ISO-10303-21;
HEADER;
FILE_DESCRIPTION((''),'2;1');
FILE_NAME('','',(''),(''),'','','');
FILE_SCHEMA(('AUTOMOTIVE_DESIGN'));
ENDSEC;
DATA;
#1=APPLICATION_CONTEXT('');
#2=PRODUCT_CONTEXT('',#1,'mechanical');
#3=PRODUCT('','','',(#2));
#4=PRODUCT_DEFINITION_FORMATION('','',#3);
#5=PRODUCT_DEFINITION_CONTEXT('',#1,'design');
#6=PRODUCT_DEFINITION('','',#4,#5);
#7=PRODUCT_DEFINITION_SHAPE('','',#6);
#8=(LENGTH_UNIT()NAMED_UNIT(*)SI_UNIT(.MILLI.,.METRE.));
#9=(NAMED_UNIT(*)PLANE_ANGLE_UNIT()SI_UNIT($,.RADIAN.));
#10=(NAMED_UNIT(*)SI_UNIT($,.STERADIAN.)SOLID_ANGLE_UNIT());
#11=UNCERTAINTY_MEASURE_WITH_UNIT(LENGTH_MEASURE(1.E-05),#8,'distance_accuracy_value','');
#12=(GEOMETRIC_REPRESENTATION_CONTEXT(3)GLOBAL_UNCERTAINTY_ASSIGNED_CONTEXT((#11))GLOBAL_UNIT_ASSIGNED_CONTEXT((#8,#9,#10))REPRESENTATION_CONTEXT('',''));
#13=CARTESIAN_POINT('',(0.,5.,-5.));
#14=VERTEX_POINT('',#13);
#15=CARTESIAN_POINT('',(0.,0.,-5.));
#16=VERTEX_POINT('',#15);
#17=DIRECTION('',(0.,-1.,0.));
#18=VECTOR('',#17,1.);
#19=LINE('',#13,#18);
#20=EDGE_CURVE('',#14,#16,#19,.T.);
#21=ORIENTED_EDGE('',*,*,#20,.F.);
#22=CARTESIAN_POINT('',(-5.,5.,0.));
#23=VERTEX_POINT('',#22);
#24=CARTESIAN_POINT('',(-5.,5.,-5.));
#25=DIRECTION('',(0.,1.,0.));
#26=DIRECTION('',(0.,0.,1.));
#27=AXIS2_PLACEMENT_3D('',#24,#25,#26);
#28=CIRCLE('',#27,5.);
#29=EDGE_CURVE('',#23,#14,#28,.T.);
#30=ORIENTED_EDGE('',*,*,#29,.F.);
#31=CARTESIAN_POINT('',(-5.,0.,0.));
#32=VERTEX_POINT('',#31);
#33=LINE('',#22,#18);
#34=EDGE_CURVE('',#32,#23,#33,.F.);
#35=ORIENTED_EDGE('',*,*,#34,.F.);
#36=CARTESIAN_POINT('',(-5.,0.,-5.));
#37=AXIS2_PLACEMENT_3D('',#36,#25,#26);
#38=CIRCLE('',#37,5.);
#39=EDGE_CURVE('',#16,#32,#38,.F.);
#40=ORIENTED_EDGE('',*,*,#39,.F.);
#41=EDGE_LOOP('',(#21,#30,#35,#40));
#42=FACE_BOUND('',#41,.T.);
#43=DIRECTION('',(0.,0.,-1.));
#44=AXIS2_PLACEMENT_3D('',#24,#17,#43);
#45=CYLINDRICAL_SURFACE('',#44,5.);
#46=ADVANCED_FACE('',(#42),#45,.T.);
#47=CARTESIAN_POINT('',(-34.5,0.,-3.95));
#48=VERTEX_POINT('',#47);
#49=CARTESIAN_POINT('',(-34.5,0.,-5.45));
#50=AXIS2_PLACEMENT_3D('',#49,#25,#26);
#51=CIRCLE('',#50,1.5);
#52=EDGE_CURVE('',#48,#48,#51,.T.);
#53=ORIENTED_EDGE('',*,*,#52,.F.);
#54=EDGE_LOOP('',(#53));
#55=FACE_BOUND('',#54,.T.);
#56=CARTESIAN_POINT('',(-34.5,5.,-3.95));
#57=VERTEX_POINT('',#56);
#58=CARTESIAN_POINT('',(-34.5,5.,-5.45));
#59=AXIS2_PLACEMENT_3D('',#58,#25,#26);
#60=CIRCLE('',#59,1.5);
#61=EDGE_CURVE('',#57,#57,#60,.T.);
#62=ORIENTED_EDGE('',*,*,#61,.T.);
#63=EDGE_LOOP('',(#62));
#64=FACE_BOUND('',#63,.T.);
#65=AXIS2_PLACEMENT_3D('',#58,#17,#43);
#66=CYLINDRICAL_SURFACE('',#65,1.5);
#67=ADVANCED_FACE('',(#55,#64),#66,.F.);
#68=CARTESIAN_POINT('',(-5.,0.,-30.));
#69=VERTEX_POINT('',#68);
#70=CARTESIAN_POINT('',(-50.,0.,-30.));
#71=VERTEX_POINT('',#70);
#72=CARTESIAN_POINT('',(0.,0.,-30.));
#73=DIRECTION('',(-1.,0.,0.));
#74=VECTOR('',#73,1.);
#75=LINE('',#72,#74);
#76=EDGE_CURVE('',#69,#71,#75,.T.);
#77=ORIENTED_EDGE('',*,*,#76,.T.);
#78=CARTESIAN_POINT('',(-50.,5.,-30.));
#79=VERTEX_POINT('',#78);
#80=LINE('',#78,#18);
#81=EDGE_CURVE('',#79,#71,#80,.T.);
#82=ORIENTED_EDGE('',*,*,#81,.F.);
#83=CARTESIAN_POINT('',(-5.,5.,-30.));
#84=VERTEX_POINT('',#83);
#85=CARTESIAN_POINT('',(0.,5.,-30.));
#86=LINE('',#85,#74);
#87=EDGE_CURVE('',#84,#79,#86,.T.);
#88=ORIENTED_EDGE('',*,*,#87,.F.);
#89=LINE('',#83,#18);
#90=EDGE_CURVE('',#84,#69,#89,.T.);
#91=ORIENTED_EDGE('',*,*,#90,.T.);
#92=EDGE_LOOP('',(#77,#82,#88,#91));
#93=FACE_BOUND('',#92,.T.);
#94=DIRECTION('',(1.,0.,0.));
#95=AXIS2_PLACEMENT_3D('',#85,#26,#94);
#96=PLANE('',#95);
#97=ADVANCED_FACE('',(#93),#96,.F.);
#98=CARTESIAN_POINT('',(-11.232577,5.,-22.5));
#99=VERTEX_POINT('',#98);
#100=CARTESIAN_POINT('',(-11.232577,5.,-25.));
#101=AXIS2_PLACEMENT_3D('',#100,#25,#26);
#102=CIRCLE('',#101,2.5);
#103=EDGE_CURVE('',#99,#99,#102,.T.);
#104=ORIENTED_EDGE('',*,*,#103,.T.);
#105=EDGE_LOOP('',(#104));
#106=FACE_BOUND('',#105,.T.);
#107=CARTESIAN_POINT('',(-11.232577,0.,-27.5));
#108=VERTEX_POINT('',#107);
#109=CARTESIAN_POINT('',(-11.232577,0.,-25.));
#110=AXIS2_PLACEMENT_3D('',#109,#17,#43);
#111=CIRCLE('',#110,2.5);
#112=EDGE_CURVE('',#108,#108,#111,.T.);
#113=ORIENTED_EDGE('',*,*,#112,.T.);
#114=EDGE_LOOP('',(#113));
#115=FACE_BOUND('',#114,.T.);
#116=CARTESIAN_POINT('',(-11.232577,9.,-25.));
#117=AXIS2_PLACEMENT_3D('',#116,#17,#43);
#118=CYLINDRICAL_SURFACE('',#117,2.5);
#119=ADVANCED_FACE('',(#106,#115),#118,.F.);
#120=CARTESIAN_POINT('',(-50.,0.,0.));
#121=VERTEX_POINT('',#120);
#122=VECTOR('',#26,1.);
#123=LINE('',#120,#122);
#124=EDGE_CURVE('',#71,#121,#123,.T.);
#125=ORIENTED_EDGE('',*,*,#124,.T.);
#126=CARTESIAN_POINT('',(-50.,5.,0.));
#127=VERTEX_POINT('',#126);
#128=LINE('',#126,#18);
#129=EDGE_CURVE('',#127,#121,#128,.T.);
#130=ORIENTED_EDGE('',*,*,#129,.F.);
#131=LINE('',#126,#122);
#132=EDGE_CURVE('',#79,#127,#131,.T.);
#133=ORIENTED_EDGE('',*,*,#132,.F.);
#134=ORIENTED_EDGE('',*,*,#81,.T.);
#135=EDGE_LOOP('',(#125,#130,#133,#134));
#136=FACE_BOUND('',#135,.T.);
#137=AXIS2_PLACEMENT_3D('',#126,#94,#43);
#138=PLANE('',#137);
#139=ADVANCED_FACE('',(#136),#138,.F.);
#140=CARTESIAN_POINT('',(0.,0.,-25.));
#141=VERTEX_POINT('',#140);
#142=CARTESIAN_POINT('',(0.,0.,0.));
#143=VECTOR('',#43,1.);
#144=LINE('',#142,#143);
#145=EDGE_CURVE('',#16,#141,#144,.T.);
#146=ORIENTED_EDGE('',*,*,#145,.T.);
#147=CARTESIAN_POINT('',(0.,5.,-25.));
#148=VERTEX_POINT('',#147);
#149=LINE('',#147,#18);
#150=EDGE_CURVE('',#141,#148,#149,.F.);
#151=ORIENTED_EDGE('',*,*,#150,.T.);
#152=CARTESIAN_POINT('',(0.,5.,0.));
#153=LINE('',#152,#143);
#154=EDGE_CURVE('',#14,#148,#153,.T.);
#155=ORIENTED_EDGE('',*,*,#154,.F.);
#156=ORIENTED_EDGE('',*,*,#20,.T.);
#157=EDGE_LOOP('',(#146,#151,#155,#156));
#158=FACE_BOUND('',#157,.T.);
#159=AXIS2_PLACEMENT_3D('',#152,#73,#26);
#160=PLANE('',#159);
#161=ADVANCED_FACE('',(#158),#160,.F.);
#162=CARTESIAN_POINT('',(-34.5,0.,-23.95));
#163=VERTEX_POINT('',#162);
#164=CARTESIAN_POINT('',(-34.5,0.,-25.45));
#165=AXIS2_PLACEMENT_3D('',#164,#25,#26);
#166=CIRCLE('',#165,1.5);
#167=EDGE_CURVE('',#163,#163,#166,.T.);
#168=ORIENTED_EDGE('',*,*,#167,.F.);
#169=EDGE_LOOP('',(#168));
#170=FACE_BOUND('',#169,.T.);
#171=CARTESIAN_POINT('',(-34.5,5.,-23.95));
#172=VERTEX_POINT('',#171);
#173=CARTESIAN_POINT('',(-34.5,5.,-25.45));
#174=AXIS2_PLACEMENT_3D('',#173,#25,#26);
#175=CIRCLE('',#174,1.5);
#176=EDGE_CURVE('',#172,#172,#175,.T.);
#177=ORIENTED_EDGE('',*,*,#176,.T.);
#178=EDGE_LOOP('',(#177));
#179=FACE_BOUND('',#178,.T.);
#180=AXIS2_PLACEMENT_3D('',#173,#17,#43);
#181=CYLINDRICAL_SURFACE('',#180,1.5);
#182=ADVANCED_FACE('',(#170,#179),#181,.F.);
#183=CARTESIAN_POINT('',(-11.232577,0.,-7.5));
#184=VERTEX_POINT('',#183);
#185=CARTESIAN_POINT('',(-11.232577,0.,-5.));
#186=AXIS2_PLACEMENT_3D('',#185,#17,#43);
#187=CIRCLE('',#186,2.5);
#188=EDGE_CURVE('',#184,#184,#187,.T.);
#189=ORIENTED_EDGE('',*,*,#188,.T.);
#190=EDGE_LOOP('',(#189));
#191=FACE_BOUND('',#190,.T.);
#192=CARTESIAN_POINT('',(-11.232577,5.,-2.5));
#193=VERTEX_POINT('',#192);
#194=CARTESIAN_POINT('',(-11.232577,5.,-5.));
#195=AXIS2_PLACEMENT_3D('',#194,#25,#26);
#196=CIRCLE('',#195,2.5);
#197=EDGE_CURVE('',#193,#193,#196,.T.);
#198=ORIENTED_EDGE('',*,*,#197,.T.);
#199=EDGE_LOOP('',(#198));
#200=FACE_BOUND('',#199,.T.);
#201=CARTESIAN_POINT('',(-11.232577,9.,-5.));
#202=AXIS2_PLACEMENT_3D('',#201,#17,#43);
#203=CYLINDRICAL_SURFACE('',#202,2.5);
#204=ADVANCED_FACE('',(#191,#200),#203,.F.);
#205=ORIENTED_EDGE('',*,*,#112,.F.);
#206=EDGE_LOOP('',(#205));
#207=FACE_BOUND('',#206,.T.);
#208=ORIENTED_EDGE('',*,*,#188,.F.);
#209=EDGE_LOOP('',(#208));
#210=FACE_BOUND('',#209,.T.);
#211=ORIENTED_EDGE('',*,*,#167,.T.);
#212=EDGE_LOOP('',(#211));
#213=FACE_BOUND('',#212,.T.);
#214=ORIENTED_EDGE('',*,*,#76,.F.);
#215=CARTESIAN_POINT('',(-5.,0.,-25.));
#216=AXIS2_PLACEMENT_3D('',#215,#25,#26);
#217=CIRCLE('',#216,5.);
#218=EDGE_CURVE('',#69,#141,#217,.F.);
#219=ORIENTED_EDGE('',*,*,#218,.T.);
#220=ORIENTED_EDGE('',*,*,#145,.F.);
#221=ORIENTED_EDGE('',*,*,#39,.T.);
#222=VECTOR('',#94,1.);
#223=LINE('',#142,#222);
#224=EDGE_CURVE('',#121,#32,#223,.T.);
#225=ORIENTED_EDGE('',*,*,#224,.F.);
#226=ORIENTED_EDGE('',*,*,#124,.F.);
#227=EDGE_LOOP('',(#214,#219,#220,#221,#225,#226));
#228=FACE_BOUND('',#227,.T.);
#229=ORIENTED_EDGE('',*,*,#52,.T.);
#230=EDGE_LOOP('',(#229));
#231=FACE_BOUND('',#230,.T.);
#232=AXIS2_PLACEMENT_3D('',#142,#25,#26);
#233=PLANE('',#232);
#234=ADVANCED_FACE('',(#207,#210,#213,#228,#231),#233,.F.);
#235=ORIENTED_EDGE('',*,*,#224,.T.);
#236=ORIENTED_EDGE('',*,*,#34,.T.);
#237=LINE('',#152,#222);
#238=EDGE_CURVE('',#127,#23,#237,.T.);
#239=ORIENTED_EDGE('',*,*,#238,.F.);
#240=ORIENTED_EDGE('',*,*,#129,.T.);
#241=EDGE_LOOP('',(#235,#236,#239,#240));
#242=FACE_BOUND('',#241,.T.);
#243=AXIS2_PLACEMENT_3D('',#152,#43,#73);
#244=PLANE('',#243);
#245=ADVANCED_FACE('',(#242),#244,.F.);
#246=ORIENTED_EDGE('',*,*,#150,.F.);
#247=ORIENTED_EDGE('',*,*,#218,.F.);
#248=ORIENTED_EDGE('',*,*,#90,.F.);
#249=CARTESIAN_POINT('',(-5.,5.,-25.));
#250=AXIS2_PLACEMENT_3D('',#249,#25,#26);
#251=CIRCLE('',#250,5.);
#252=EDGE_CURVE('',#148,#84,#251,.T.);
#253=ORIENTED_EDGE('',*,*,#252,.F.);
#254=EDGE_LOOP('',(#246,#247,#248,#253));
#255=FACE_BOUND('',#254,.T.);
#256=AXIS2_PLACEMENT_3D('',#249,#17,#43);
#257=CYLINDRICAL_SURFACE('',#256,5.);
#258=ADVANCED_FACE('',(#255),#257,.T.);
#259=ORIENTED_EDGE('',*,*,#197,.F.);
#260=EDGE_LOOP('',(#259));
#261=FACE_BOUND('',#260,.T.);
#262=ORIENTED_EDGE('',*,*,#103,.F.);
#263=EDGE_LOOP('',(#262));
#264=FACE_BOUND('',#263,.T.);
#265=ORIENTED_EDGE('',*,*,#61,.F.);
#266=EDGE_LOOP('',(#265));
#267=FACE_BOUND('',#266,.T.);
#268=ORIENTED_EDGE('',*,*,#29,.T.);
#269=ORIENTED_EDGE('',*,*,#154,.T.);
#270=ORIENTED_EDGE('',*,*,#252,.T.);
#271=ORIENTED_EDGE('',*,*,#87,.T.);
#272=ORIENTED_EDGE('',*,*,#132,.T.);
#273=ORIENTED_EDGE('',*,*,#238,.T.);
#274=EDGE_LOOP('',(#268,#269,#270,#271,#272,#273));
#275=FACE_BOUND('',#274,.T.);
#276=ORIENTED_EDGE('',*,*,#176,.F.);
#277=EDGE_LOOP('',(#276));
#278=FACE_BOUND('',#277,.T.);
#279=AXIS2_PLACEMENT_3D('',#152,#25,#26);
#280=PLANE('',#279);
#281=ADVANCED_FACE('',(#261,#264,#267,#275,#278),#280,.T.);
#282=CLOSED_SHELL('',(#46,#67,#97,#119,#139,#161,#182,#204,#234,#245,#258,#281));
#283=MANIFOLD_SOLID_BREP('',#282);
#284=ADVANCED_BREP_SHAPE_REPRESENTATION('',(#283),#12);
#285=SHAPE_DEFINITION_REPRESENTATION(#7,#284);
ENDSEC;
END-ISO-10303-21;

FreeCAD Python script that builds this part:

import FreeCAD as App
import Part
import Sketcher
from FreeCAD import Vector


def edges_at(feature, points):
    """Names of the edges that pass closest to the given points."""
    edges = feature.Shape.Edges
    near = lambda p: min(range(len(edges)), key=lambda i: edges[i].distToShape(Part.Vertex(*p))[0])
    return sorted({f"Edge{near(p) + 1}" for p in points})

doc = App.newDocument("Part")
params = doc.addObject("Spreadsheet::Sheet", "Params")
for row, (alias, value) in enumerate([
    ("sketch1_diameter", "3 mm"),
    ("sketch1_width", "50 mm"),
    ("sketch1_height", "30 mm"),
    ("pad1_length", "5 mm"),
    ("fillet_radius", "5 mm"),
    ("sketch2_diameter", "5 mm"),
    ("pocket1_length", "9 mm"),
], start=1):
    params.set(f"A{row}", alias)
    params.set(f"B{row}", "=" + value)
    params.setAlias(f"B{row}", alias)

body = doc.addObject("PartDesign::Body", "Body")

sketch1 = body.newObject("Sketcher::SketchObject", "Sketch")
sketch1.AttachmentSupport = (doc.getObject("XZ_Plane"), [""])
sketch1.MapMode = "FlatFace"
sketch1.addGeometry([
    Part.LineSegment(Vector(-50, -30, 0), Vector(-50, 0, 0)),
    Part.LineSegment(Vector(-50, 0, 0), Vector(0, 0, 0)),
    Part.LineSegment(Vector(0, 0, 0), Vector(0, -30, 0)),
    Part.LineSegment(Vector(0, -30, 0), Vector(-50, -30, 0)),
    Part.Circle(Vector(-34.5, -5.5, 0), Vector(0, 0, 1), 1.5),
    Part.Circle(Vector(-34.5, -25.4, 0), Vector(0, 0, 1), 1.5),
], False)
sketch1.addConstraint([
    Sketcher.Constraint("Coincident", 0, 2, 1, 1),
    Sketcher.Constraint("Coincident", 1, 2, 2, 1),
    Sketcher.Constraint("Coincident", 2, 2, 3, 1),
    Sketcher.Constraint("Coincident", 3, 2, 0, 1),
    Sketcher.Constraint("Vertical", 0),
    Sketcher.Constraint("Horizontal", 1),
    Sketcher.Constraint("Vertical", 2),
    Sketcher.Constraint("Horizontal", 3),
    Sketcher.Constraint("Coincident", 1, 2, -1, 1),
    Sketcher.Constraint("Equal", 4, 5),
    Sketcher.Constraint("Vertical", 4, 3, 5, 3),
    Sketcher.Constraint("Diameter", 4, 3.0),
    Sketcher.Constraint("DistanceX", 1, 1, 1, 2, 50.0),
    Sketcher.Constraint("DistanceY", 0, 1, 0, 2, 30.0),
    Sketcher.Constraint("DistanceY", 5, 3, 4, 3, 20.0),
    Sketcher.Constraint("DistanceX", 4, 3, -1, 1, 34.5),
    Sketcher.Constraint("DistanceY", 4, 3, -1, 1, 5.45),
])
sketch1.setExpression("Constraints[11]", "Params.sketch1_diameter")
sketch1.setExpression("Constraints[12]", "Params.sketch1_width")
sketch1.setExpression("Constraints[13]", "Params.sketch1_height")
pad1 = body.newObject("PartDesign::Pad", "Pad")
pad1.Profile = sketch1
pad1.setExpression("Length", "Params.pad1_length")
pad1.Reversed = True
doc.recompute()

fillet = body.newObject("PartDesign::Fillet", "Fillet")
fillet.Base = (pad1, edges_at(pad1, [(0, 2.5, 0), (0, 2.5, -30)]))
fillet.setExpression("Radius", "Params.fillet_radius")

sketch2 = body.newObject("Sketcher::SketchObject", "Sketch001")
sketch2.AttachmentSupport = (doc.getObject("XZ_Plane"), [""])
sketch2.MapMode = "FlatFace"
sketch2.addGeometry([
    Part.Circle(Vector(-11.2, -5, 0), Vector(0, 0, 1), 2.5),
    Part.Circle(Vector(-11.2, -25, 0), Vector(0, 0, 1), 2.5),
], False)
sketch2.addConstraint([
    Sketcher.Constraint("Equal", 0, 1),
    Sketcher.Constraint("Vertical", 0, 3, 1, 3),
    Sketcher.Constraint("Diameter", 0, 5.0),
    Sketcher.Constraint("DistanceY", 0, 3, -1, 1, 5.0),
    Sketcher.Constraint("DistanceY", 1, 3, -1, 1, 25.0),
    Sketcher.Constraint("DistanceX", 0, 3, -1, 1, 11.232577),
])
sketch2.setExpression("Constraints[2]", "Params.sketch2_diameter")
pocket1 = body.newObject("PartDesign::Pocket", "Pocket")
pocket1.Profile = sketch2
pocket1.setExpression("Length", "Params.pocket1_length")

doc.recompute()
